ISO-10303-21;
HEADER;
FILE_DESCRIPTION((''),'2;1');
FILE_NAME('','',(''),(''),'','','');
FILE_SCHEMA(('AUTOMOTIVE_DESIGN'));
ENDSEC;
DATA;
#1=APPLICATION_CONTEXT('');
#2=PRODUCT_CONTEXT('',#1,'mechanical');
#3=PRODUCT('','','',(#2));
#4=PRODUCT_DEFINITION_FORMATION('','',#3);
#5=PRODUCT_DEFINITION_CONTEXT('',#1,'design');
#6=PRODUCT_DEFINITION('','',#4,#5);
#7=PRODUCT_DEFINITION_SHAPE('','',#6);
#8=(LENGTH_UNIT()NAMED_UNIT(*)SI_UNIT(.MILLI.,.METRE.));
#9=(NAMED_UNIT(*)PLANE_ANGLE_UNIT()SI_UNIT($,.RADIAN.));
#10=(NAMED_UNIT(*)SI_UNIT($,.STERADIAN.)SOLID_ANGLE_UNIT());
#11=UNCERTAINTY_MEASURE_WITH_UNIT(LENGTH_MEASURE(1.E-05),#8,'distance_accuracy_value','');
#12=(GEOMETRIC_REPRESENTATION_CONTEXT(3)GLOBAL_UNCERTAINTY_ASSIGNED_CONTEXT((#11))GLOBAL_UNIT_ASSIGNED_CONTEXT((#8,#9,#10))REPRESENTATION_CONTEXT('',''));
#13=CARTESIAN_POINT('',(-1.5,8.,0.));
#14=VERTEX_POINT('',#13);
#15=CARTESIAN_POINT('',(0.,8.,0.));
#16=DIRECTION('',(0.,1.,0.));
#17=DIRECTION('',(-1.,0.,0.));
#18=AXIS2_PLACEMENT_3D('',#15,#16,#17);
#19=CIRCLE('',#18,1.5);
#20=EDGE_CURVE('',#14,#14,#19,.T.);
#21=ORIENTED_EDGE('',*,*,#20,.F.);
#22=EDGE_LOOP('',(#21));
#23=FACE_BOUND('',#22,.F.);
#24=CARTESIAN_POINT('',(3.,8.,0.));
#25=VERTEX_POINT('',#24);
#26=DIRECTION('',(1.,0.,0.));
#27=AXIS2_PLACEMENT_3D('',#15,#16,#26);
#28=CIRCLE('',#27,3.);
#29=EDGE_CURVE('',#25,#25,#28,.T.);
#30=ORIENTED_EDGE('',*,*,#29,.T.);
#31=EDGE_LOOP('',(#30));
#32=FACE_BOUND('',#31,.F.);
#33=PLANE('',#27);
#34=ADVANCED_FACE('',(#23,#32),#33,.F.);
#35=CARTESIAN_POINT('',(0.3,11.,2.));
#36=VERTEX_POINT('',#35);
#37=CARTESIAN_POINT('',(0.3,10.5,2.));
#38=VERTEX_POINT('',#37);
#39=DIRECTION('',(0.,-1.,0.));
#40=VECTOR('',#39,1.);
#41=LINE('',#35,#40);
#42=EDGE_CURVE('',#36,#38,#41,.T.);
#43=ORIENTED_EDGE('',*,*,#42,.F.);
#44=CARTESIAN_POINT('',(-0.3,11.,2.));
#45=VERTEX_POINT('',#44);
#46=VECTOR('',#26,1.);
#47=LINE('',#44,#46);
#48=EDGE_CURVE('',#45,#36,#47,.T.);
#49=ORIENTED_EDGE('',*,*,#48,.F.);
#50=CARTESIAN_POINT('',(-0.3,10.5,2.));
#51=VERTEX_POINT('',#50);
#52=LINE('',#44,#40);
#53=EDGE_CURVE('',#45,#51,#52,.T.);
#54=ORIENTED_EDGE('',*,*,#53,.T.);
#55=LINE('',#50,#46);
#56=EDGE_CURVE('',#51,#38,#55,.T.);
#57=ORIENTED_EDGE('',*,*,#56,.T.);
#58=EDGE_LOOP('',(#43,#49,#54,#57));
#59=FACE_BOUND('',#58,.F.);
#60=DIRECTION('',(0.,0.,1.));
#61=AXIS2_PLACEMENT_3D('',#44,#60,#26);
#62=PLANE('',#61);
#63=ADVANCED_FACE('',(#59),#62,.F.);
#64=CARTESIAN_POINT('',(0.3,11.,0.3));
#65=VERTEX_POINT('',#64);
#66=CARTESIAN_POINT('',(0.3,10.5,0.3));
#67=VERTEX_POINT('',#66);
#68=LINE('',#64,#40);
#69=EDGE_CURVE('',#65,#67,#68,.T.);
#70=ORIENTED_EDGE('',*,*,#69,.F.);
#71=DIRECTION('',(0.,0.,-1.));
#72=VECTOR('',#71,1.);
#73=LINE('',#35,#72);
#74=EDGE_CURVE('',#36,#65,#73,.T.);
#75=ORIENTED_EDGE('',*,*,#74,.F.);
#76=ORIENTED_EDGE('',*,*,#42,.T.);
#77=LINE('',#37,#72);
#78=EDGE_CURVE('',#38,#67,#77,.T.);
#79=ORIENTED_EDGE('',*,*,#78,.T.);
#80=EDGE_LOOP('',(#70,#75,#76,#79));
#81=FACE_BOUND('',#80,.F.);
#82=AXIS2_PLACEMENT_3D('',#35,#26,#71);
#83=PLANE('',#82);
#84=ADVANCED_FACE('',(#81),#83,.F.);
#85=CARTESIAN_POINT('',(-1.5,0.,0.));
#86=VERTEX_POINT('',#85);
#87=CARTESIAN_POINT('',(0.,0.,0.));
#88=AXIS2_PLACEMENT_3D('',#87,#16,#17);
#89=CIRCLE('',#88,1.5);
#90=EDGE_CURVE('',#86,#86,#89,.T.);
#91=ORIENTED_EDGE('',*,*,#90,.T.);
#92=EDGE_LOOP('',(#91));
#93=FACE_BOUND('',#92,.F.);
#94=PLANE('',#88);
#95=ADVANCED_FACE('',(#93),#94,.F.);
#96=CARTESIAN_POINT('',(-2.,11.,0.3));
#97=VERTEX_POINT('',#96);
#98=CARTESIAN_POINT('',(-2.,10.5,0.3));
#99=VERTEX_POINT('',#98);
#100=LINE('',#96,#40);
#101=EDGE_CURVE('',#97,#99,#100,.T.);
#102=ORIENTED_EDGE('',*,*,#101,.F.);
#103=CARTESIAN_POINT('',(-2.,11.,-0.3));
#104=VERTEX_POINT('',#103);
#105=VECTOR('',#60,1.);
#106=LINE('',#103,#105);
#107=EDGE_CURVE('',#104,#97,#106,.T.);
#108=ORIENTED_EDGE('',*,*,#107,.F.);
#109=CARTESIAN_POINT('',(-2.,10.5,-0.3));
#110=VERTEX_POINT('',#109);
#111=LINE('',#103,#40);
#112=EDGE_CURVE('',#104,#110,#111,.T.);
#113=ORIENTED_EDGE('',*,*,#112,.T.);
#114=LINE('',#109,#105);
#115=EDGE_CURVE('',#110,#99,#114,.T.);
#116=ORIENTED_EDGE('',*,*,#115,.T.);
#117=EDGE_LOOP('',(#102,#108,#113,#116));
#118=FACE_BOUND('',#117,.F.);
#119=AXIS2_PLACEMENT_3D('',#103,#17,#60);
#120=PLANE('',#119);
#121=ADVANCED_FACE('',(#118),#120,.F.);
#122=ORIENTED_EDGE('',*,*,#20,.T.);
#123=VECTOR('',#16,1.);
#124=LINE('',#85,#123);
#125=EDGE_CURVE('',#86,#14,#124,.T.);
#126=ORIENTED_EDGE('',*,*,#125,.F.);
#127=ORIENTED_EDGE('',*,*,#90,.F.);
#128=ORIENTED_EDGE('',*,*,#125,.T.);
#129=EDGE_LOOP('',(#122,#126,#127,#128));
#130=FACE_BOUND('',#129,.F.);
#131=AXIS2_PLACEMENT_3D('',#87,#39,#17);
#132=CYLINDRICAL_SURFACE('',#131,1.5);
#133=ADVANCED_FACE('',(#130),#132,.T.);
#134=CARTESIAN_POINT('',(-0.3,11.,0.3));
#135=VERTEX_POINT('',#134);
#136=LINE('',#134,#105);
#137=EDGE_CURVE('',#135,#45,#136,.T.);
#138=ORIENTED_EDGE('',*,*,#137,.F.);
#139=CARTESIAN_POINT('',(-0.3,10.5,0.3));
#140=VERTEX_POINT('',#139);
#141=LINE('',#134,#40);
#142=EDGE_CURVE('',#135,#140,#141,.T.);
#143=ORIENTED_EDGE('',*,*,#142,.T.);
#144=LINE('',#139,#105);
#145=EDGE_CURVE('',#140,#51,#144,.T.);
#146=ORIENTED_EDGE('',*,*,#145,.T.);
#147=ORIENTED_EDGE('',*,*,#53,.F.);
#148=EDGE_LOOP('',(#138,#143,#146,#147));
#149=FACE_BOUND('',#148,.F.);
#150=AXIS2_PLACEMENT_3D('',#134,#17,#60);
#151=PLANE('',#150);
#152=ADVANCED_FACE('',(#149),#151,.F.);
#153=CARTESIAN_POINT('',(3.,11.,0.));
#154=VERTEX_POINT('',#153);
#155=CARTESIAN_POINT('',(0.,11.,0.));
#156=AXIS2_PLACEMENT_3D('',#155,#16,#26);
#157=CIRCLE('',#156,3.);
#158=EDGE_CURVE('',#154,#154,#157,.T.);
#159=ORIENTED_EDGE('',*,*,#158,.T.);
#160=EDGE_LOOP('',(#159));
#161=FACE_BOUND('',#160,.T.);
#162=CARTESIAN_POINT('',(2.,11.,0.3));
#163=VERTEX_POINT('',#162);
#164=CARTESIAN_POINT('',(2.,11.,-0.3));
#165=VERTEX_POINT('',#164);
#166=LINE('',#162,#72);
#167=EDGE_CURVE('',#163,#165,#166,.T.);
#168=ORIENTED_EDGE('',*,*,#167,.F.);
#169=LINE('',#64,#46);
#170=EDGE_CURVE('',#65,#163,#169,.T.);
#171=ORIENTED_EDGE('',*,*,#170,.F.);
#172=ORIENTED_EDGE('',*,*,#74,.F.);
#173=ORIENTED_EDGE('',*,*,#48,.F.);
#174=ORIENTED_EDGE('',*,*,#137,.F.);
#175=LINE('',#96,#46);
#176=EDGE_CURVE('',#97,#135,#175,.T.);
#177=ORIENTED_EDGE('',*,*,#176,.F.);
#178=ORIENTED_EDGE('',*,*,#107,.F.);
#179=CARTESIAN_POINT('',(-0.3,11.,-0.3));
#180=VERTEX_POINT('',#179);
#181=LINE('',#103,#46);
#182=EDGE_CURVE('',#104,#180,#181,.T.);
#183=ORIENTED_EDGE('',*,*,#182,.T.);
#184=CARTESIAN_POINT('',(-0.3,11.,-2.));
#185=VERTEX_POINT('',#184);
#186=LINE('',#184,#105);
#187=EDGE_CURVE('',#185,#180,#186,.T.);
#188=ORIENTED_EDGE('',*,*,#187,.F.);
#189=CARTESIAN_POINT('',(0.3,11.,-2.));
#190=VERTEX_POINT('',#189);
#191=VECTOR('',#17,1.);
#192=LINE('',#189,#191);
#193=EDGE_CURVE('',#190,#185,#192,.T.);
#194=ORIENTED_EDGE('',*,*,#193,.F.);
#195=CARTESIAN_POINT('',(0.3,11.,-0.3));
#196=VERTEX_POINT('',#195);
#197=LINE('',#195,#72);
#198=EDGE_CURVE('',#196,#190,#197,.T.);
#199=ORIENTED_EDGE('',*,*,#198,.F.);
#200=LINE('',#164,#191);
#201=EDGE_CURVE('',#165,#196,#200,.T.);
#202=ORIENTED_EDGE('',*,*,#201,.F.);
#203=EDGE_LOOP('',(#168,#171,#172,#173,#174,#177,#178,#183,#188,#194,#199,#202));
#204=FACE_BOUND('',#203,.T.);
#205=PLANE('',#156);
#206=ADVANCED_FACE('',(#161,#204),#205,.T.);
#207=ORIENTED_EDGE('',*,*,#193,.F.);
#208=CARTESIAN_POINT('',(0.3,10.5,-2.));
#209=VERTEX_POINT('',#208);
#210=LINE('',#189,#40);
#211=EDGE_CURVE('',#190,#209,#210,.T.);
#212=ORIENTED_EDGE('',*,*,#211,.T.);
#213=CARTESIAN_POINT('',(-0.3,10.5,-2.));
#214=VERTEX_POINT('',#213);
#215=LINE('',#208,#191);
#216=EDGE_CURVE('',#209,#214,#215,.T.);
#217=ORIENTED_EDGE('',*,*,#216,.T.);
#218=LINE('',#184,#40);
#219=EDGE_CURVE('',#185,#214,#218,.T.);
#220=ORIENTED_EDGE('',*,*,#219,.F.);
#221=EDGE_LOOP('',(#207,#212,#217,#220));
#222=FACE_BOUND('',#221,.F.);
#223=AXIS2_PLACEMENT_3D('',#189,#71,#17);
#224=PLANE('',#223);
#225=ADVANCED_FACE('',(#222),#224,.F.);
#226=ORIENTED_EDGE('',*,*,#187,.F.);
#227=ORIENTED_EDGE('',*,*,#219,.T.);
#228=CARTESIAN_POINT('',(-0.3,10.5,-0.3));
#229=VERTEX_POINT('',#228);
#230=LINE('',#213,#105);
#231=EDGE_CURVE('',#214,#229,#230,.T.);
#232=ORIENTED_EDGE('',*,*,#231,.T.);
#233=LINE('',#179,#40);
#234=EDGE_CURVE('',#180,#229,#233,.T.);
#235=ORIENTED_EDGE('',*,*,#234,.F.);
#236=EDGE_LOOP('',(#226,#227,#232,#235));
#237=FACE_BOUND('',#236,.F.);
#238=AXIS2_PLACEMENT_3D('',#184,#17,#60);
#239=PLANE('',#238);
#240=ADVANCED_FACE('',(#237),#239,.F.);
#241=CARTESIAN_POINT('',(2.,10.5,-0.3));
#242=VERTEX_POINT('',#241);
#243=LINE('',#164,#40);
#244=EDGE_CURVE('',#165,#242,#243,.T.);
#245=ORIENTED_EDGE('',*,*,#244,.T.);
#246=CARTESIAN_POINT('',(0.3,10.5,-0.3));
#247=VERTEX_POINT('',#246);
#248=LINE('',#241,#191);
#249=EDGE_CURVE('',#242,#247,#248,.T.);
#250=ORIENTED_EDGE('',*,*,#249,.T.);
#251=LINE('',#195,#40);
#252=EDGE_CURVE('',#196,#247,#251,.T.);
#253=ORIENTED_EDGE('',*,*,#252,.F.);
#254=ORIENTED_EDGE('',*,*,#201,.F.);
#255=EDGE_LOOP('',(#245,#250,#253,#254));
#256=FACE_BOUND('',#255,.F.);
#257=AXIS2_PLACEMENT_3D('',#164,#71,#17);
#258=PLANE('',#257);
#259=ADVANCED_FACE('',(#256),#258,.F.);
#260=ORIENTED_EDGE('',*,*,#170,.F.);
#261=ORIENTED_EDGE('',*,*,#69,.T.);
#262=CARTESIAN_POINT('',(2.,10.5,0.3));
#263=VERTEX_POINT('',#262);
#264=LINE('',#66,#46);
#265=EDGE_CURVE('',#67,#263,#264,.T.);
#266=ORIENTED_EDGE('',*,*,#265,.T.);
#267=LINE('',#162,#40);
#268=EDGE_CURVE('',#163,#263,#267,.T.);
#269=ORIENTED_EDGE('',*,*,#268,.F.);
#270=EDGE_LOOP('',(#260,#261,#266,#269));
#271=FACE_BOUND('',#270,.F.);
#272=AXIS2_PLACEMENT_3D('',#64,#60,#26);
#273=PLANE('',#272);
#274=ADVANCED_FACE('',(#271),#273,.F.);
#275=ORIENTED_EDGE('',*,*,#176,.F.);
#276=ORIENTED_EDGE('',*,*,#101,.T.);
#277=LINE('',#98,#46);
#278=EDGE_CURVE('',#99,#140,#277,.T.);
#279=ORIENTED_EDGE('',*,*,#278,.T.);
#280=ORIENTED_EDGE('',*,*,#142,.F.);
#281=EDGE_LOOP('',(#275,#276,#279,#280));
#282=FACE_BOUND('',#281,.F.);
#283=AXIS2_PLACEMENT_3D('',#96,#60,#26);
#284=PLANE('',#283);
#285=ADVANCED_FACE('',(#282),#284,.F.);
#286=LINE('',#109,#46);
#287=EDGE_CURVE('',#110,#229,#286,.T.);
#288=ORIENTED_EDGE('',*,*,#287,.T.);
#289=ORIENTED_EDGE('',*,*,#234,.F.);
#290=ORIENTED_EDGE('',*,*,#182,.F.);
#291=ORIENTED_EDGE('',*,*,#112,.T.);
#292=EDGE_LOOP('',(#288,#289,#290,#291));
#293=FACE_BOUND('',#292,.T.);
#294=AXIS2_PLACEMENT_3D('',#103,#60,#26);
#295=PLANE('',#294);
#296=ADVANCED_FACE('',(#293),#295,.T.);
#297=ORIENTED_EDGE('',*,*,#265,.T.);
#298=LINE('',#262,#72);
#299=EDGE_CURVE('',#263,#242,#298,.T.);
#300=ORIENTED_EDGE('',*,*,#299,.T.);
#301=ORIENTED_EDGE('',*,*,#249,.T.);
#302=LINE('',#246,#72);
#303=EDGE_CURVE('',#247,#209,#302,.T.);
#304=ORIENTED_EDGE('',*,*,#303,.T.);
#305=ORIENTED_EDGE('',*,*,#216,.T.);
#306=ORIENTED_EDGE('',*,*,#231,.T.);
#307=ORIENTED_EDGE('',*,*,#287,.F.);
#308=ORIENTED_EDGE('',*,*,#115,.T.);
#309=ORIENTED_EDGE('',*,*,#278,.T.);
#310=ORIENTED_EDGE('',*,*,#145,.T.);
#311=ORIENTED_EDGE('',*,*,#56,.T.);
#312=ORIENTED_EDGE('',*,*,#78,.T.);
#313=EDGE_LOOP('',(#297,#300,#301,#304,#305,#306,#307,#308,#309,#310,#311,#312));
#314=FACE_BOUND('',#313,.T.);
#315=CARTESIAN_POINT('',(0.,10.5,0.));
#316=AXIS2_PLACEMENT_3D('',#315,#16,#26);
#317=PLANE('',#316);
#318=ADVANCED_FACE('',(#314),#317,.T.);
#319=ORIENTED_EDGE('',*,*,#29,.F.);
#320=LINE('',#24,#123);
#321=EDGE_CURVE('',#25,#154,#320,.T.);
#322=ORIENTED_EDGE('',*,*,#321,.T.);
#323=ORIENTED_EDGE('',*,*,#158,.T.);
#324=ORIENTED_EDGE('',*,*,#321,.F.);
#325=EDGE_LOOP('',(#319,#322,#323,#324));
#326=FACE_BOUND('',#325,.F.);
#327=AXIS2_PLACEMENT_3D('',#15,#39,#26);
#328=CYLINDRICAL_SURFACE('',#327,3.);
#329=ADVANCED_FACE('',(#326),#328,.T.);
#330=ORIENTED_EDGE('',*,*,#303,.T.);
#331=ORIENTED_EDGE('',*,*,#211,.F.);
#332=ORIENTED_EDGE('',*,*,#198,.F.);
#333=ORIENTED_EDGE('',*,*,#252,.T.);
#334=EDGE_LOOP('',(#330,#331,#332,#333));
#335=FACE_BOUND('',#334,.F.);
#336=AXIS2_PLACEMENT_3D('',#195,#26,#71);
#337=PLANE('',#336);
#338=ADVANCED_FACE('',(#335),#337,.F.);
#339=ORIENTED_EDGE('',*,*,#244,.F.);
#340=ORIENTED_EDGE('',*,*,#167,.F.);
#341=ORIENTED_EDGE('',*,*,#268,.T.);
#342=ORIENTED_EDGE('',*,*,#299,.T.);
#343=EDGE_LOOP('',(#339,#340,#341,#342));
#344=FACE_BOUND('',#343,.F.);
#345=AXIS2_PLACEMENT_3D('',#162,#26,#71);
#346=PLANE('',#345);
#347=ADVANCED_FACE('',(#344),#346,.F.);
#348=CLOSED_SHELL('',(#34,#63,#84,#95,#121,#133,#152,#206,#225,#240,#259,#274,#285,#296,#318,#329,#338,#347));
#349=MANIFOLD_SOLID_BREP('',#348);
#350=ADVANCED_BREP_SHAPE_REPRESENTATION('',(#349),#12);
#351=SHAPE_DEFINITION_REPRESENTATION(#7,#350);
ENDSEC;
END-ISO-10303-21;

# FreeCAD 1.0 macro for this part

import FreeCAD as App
import Part
import Sketcher
from FreeCAD import Vector
Q = App.Units.Quantity


def add_polygon(sketch, points):
    """Adds a closed chain of lines whose ends are joined by coincident constraints."""
    first, n = sketch.GeometryCount, len(points)
    for a, b in zip(points, points[1:] + points[:1]):
        sketch.addGeometry(Part.LineSegment(App.Vector(*a, 0), App.Vector(*b, 0)), False)
    for i in range(n):
        sketch.addConstraint(Sketcher.Constraint("Coincident", first + i, 2, first + (i + 1) % n, 1))

doc = App.newDocument("Part")
body = doc.addObject("PartDesign::Body", "Body")

sketch1 = doc.addObject("Sketcher::SketchObject", "Sketch")
body.addObject(sketch1)
sketch1.AttachmentSupport = (doc.XZ_Plane, [""])
sketch1.MapMode = "FlatFace"
sketch1.addGeometry(Part.Circle(Vector(0, 0, 0), Vector(0, 0, 1), 1.5), False)
sketch1.addConstraint([
    Sketcher.Constraint("Coincident", 0, 3, -1, 1),
    Sketcher.Constraint("Diameter", 0, Q("3 mm")),
])
pad1 = doc.addObject("PartDesign::Pad", "Pad")
body.addObject(pad1)
pad1.Profile = sketch1
pad1.Length = 8
pad1.Reversed = True

sketch2 = doc.addObject("Sketcher::SketchObject", "Sketch001")
body.addObject(sketch2)
sketch2.AttachmentSupport = (doc.XZ_Plane, [""])
sketch2.MapMode = "FlatFace"
sketch2.AttachmentOffset = App.Placement(Vector(0, 0, -8), App.Rotation())
sketch2.addGeometry(Part.Circle(Vector(0, 0, 0), Vector(0, 0, 1), 3), False)
sketch2.addConstraint([
    Sketcher.Constraint("Coincident", 0, 3, -1, 1),
    Sketcher.Constraint("Diameter", 0, Q("6 mm")),
])
pad2 = doc.addObject("PartDesign::Pad", "Pad001")
body.addObject(pad2)
pad2.Profile = sketch2
pad2.Length = 3
pad2.Reversed = True

sketch3 = doc.addObject("Sketcher::SketchObject", "Sketch002")
body.addObject(sketch3)
sketch3.AttachmentSupport = (doc.XZ_Plane, [""])
sketch3.MapMode = "FlatFace"
sketch3.AttachmentOffset = App.Placement(Vector(0, 0, -11), App.Rotation())
add_polygon(sketch3, [(-2, -0.3), (-2, 0.3), (-0.3, 0.3), (-0.3, 2), (0.3, 2), (0.3, 0.3), (2, 0.3), (2, -0.3), (0.3, -0.3), (0.3, -2), (-0.3, -2), (-0.3, -0.3)])
sketch3.addConstraint([
    Sketcher.Constraint("Vertical", 0),
    Sketcher.Constraint("Horizontal", 1),
    Sketcher.Constraint("Vertical", 2),
    Sketcher.Constraint("Horizontal", 3),
    Sketcher.Constraint("Vertical", 4),
    Sketcher.Constraint("Horizontal", 5),
    Sketcher.Constraint("Vertical", 6),
    Sketcher.Constraint("Horizontal", 7),
    Sketcher.Constraint("Vertical", 8),
    Sketcher.Constraint("Horizontal", 9),
    Sketcher.Constraint("Vertical", 10),
    Sketcher.Constraint("Horizontal", 11),
    Sketcher.Constraint("Symmetric", 0, 2, 6, 2, -1, 1),
    Sketcher.Constraint("Symmetric", 2, 2, 8, 2, -1, 1),
    Sketcher.Constraint("Symmetric", 4, 2, 10, 2, -1, 1),
    Sketcher.Constraint("Symmetric", 1, 2, 4, 2, -2),
    Sketcher.Constraint("Equal", 9, 0),
    Sketcher.Constraint("Equal", 11, 2),
    Sketcher.Constraint("DistanceX", 0, 2, -1, 1, Q("2 mm")),
    Sketcher.Constraint("DistanceY", -1, 1, 0, 2, Q("0.3 mm")),
])
pocket1 = doc.addObject("PartDesign::Pocket", "Pocket")
body.addObject(pocket1)
pocket1.Profile = sketch3
pocket1.Length = 0.5
pocket1.Reversed = True

doc.recompute()
